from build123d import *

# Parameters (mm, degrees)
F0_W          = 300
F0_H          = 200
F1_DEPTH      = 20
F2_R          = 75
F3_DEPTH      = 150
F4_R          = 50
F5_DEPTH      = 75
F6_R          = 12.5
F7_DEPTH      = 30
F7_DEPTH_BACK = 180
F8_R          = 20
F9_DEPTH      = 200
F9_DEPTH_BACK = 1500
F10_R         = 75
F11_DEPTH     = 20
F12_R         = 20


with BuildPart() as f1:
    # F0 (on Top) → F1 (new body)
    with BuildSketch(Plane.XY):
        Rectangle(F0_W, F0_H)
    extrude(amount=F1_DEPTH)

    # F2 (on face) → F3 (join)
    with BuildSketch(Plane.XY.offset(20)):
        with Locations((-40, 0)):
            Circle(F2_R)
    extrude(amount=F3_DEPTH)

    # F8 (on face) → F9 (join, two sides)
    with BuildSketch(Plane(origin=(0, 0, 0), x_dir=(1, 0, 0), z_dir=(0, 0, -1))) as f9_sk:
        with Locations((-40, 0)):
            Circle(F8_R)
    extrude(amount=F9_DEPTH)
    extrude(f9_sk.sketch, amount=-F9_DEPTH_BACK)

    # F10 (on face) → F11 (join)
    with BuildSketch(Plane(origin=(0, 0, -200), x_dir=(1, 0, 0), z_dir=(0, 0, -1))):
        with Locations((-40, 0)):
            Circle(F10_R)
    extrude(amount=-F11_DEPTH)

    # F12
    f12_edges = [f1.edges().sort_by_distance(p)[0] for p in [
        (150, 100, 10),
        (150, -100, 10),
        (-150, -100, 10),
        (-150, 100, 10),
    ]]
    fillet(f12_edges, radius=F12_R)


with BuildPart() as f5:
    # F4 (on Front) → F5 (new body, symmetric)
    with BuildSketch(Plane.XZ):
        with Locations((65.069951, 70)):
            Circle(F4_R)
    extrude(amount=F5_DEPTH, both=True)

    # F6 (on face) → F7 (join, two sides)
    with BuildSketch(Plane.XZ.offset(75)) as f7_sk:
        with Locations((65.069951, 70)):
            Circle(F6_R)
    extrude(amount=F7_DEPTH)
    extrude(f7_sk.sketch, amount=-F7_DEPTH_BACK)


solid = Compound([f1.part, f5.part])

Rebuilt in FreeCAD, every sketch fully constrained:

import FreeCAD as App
import Part
import Sketcher


def edges_at(feature, points):
    """Names of the edges that pass closest to the given points."""
    edges = feature.Shape.Edges
    near = lambda p: min(range(len(edges)), key=lambda i: edges[i].distToShape(Part.Vertex(*p))[0])
    return sorted({f"Edge{near(p) + 1}" for p in points})

doc = App.newDocument("Part")
body = doc.addObject("PartDesign::Body", "Body")

# Sketch on XY plane
sketch1 = body.newObject("Sketcher::SketchObject", "Sketch")
sketch1.AttachmentSupport = (doc.getObject("XY_Plane"), [""])
sketch1.MapMode = "FlatFace"
sketch1.addGeometry(Part.LineSegment(App.Vector(-150, 100, 0), App.Vector(-150, -100, 0)), False)
sketch1.addGeometry(Part.LineSegment(App.Vector(-150, -100, 0), App.Vector(150, -100, 0)), False)
sketch1.addGeometry(Part.LineSegment(App.Vector(150, -100, 0), App.Vector(150, 100, 0)), False)
sketch1.addGeometry(Part.LineSegment(App.Vector(150, 100, 0), App.Vector(-150, 100, 0)), False)
sketch1.addConstraint(Sketcher.Constraint("Coincident", 0, 2, 1, 1))
sketch1.addConstraint(Sketcher.Constraint("Coincident", 1, 2, 2, 1))
sketch1.addConstraint(Sketcher.Constraint("Coincident", 2, 2, 3, 1))
sketch1.addConstraint(Sketcher.Constraint("Coincident", 3, 2, 0, 1))
sketch1.addConstraint(Sketcher.Constraint("Vertical", 0))
sketch1.addConstraint(Sketcher.Constraint("Horizontal", 1))
sketch1.addConstraint(Sketcher.Constraint("Vertical", 2))
sketch1.addConstraint(Sketcher.Constraint("Horizontal", 3))
sketch1.addConstraint(Sketcher.Constraint("Symmetric", 0, 2, 2, 2, -1, 1))
sketch1.addConstraint(Sketcher.Constraint("DistanceX", 1, 1, 1, 2, 300.0))
sketch1.addConstraint(Sketcher.Constraint("DistanceY", 0, 2, 0, 1, 200.0))
pad1 = body.newObject("PartDesign::Pad", "Pad")
pad1.Profile = sketch1
pad1.Length = 20

# Sketch on XY plane
sketch2 = body.newObject("Sketcher::SketchObject", "Sketch001")
sketch2.AttachmentSupport = (doc.getObject("XY_Plane"), [""])
sketch2.MapMode = "FlatFace"
sketch2.AttachmentOffset = App.Placement(App.Vector(0, 0, 20), App.Rotation())
sketch2.addGeometry(Part.Circle(App.Vector(-40, 0, 0), App.Vector(0, 0, 1), 75), False)
sketch2.addConstraint(Sketcher.Constraint("PointOnObject", 0, 3, -1))
sketch2.addConstraint(Sketcher.Constraint("Diameter", 0, 150.0))
sketch2.addConstraint(Sketcher.Constraint("DistanceX", 0, 3, -1, 1, 40.0))
pad2 = body.newObject("PartDesign::Pad", "Pad001")
pad2.Profile = sketch2
pad2.Length = 150

# Sketch on XY plane
sketch3 = body.newObject("Sketcher::SketchObject", "Sketch002")
sketch3.AttachmentSupport = (doc.getObject("XY_Plane"), [""])
sketch3.MapMode = "FlatFace"
sketch3.addGeometry(Part.Circle(App.Vector(-40, 0, 0), App.Vector(0, 0, 1), 20), False)
sketch3.addConstraint(Sketcher.Constraint("PointOnObject", 0, 3, -1))
sketch3.addConstraint(Sketcher.Constraint("Diameter", 0, 40.0))
sketch3.addConstraint(Sketcher.Constraint("DistanceX", 0, 3, -1, 1, 40.0))
pad3 = body.newObject("PartDesign::Pad", "Pad002")
pad3.Profile = sketch3
pad3.Type = "TwoLengths"
pad3.Length = 200
pad3.Length2 = 1500
pad3.Reversed = True

# Sketch on XY plane
sketch4 = body.newObject("Sketcher::SketchObject", "Sketch003")
sketch4.AttachmentSupport = (doc.getObject("XY_Plane"), [""])
sketch4.MapMode = "FlatFace"
sketch4.AttachmentOffset = App.Placement(App.Vector(0, 0, -200), App.Rotation())
sketch4.addGeometry(Part.Circle(App.Vector(-40, 0, 0), App.Vector(0, 0, 1), 75), False)
sketch4.addConstraint(Sketcher.Constraint("PointOnObject", 0, 3, -1))
sketch4.addConstraint(Sketcher.Constraint("Diameter", 0, 150.0))
sketch4.addConstraint(Sketcher.Constraint("DistanceX", 0, 3, -1, 1, 40.0))
pad4 = body.newObject("PartDesign::Pad", "Pad003")
pad4.Profile = sketch4
pad4.Length = 20
doc.recompute()

fillet = body.newObject("PartDesign::Fillet", "Fillet")
fillet.Base = (pad4, edges_at(pad4, [
    (150, 100, 10),
    (150, -100, 10),
    (-150, -100, 10),
    (-150, 100, 10),
]))
fillet.Radius = 20
body2 = doc.addObject("PartDesign::Body", "Body001")

# Sketch on XZ plane
sketch5 = body2.newObject("Sketcher::SketchObject", "Sketch004")
sketch5.AttachmentSupport = (doc.getObject("XZ_Plane001"), [""])
sketch5.MapMode = "FlatFace"
sketch5.addGeometry(Part.Circle(App.Vector(65.069951, 70, 0), App.Vector(0, 0, 1), 50), False)
sketch5.addConstraint(Sketcher.Constraint("Diameter", 0, 100.0))
sketch5.addConstraint(Sketcher.Constraint("DistanceY", -1, 1, 0, 3, 70.0))
sketch5.addConstraint(Sketcher.Constraint("DistanceX", -1, 1, 0, 3, 65.069951))
pad5 = body2.newObject("PartDesign::Pad", "Pad004")
pad5.Profile = sketch5
pad5.Length = 150
pad5.Midplane = True

# Sketch on XZ plane
sketch6 = body2.newObject("Sketcher::SketchObject", "Sketch005")
sketch6.AttachmentSupport = (doc.getObject("XZ_Plane001"), [""])
sketch6.MapMode = "FlatFace"
sketch6.AttachmentOffset = App.Placement(App.Vector(0, 0, 75), App.Rotation())
sketch6.addGeometry(Part.Circle(App.Vector(65.069951, 70, 0), App.Vector(0, 0, 1), 12.5), False)
sketch6.addConstraint(Sketcher.Constraint("Diameter", 0, 25.0))
sketch6.addConstraint(Sketcher.Constraint("DistanceY", -1, 1, 0, 3, 70.0))
sketch6.addConstraint(Sketcher.Constraint("DistanceX", -1, 1, 0, 3, 65.069951))
pad6 = body2.newObject("PartDesign::Pad", "Pad005")
pad6.Profile = sketch6
pad6.Type = "TwoLengths"
pad6.Length = 30
pad6.Length2 = 180

doc.recompute()
